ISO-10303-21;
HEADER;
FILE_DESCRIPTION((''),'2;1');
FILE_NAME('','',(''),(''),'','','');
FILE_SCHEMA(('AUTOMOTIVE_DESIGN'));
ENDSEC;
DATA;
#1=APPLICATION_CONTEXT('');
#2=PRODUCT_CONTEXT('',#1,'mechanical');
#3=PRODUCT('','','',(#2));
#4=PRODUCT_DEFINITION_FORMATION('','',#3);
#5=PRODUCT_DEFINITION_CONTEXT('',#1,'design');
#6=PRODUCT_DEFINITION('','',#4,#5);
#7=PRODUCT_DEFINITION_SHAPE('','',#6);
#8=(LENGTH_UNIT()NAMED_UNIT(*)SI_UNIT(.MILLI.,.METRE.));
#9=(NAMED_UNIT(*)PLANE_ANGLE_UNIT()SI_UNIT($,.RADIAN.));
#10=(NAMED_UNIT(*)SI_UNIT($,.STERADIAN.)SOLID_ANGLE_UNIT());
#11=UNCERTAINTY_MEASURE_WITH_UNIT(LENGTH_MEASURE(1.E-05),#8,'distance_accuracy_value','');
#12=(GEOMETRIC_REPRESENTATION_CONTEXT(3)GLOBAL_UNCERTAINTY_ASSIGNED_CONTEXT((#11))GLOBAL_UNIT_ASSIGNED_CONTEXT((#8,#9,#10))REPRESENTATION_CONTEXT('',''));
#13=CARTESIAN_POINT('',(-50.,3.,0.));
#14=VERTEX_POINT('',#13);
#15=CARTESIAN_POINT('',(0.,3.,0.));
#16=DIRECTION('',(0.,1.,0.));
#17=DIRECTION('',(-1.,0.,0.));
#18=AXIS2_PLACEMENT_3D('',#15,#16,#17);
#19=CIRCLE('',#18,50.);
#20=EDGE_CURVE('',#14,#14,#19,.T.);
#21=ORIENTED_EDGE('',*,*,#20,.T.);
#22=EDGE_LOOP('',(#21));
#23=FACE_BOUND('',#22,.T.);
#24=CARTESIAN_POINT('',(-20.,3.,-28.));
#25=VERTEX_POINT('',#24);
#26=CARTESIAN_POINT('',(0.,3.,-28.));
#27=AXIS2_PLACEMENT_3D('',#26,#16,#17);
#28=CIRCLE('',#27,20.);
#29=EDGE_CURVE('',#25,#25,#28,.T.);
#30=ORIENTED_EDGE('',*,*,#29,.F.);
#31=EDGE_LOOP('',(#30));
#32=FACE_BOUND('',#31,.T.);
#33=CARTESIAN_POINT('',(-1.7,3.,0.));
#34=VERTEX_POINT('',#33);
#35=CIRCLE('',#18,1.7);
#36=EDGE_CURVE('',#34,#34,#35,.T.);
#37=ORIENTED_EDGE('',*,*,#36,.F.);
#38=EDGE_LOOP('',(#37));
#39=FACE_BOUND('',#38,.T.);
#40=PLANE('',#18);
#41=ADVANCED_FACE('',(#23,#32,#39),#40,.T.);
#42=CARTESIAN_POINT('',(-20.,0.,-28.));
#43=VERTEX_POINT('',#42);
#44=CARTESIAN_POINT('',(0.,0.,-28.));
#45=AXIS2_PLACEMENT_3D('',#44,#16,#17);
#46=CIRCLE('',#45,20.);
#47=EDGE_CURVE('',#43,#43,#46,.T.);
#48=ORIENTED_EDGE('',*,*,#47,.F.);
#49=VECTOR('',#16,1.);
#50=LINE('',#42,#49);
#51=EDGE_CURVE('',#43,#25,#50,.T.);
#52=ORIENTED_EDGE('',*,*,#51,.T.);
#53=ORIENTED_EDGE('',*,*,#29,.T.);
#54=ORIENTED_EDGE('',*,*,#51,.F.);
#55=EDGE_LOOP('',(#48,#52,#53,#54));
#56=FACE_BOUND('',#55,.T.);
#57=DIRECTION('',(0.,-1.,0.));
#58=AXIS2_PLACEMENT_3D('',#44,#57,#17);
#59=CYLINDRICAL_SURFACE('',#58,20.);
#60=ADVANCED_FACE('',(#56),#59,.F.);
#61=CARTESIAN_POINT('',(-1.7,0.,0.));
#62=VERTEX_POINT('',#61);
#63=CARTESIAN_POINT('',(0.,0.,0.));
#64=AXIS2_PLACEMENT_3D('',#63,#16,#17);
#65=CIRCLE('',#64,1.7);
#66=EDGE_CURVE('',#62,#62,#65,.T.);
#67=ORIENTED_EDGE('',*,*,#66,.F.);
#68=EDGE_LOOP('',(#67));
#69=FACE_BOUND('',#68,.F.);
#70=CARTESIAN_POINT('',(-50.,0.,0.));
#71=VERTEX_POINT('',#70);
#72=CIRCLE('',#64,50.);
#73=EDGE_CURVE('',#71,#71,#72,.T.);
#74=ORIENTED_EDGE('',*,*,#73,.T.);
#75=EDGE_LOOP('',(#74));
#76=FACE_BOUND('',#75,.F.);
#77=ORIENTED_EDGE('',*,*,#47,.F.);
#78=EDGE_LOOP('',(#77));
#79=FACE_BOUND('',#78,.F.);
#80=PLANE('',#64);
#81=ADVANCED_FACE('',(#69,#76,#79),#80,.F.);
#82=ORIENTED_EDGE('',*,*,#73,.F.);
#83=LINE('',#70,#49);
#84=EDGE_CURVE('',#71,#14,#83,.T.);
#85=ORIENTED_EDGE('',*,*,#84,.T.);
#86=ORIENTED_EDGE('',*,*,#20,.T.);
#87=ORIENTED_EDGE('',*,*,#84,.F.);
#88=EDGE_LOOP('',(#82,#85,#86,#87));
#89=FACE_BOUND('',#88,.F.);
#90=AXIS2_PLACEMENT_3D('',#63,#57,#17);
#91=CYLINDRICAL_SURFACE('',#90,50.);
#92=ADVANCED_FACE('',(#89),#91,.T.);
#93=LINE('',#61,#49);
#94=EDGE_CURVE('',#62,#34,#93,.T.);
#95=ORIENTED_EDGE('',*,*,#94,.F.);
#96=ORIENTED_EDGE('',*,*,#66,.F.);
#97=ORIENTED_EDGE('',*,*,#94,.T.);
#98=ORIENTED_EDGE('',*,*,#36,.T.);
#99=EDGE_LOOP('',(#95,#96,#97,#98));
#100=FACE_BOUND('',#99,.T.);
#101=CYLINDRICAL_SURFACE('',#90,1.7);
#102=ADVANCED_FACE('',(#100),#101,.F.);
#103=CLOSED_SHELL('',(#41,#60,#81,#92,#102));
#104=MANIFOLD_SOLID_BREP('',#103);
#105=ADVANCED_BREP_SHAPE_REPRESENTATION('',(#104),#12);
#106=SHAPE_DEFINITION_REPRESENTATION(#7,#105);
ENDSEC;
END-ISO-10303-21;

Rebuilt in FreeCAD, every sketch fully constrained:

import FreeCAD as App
import Part
import Sketcher
from FreeCAD import Vector
Q = App.Units.Quantity

doc = App.newDocument("Part")
body = doc.addObject("PartDesign::Body", "Body")

# Sketch on XZ plane
sketch1 = body.newObject("Sketcher::SketchObject", "Sketch")
sketch1.AttachmentSupport = (doc.getObject("XZ_Plane"), [""])
sketch1.MapMode = "FlatFace"
sketch1.addGeometry(Part.Circle(Vector(0, 0, 0), Vector(0, 0, 1), 50), False)
sketch1.addGeometry(Part.Circle(Vector(0, -28, 0), Vector(0, 0, 1), 20), False)
sketch1.addGeometry(Part.Circle(Vector(0, 0, 0), Vector(0, 0, 1), 1.7), False)
sketch1.addConstraint(Sketcher.Constraint("Coincident", 0, 3, -1, 1))
sketch1.addConstraint(Sketcher.Constraint("Coincident", 2, 3, -1, 1))
sketch1.addConstraint(Sketcher.Constraint("PointOnObject", 1, 3, -2))
sketch1.addConstraint(Sketcher.Constraint("Diameter", 0, Q("100 mm")))
sketch1.addConstraint(Sketcher.Constraint("Diameter", 1, Q("40 mm")))
sketch1.addConstraint(Sketcher.Constraint("Diameter", 2, Q("3.4 mm")))
sketch1.addConstraint(Sketcher.Constraint("DistanceY", 1, 3, -1, 1, Q("28 mm")))
pad1 = body.newObject("PartDesign::Pad", "Pad")
pad1.Profile = sketch1
pad1.Length = 3
pad1.Reversed = True

doc.recompute()
